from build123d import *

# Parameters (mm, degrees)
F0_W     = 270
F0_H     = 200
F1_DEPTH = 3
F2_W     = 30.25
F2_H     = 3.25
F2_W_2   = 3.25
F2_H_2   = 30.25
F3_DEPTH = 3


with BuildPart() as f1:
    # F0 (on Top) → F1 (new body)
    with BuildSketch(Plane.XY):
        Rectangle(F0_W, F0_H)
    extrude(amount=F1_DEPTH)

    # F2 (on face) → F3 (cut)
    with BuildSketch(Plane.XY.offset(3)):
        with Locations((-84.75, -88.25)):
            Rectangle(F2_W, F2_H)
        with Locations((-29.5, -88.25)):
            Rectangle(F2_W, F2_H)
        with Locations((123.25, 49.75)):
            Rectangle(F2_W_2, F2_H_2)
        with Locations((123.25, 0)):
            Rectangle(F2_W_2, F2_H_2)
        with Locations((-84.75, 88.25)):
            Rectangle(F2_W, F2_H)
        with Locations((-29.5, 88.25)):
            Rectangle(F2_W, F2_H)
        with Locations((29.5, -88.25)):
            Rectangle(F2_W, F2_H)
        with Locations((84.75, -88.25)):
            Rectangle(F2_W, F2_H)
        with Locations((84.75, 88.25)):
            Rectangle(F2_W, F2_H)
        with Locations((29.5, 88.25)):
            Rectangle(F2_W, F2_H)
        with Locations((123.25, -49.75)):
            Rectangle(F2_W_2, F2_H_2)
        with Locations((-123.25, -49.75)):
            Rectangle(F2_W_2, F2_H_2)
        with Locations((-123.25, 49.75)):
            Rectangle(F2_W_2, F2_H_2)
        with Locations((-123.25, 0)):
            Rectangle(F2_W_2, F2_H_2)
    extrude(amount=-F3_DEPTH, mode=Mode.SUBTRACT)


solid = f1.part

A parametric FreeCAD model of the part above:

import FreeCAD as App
import Part
import Sketcher
from FreeCAD import Vector

doc = App.newDocument("Part")
body = doc.addObject("PartDesign::Body", "Body")

sketch1 = body.newObject("Sketcher::SketchObject", "Sketch")
sketch1.AttachmentSupport = (doc.getObject("XY_Plane"), [""])
sketch1.MapMode = "FlatFace"
sketch1.addGeometry([
    Part.LineSegment(Vector(-135, 100, 0), Vector(-135, -100, 0)),
    Part.LineSegment(Vector(-135, -100, 0), Vector(135, -100, 0)),
    Part.LineSegment(Vector(135, -100, 0), Vector(135, 100, 0)),
    Part.LineSegment(Vector(135, 100, 0), Vector(-135, 100, 0)),
], False)
sketch1.addConstraint([
    Sketcher.Constraint("Coincident", 0, 2, 1, 1),
    Sketcher.Constraint("Coincident", 1, 2, 2, 1),
    Sketcher.Constraint("Coincident", 2, 2, 3, 1),
    Sketcher.Constraint("Coincident", 3, 2, 0, 1),
    Sketcher.Constraint("Vertical", 0),
    Sketcher.Constraint("Horizontal", 1),
    Sketcher.Constraint("Vertical", 2),
    Sketcher.Constraint("Horizontal", 3),
    Sketcher.Constraint("Symmetric", 0, 2, 2, 2, -1, 1),
    Sketcher.Constraint("DistanceX", 1, 1, 1, 2, 270.0),
    Sketcher.Constraint("DistanceY", 0, 2, 0, 1, 200.0),
])
pad1 = body.newObject("PartDesign::Pad", "Pad")
pad1.Profile = sketch1
pad1.Length = 3

sketch2 = body.newObject("Sketcher::SketchObject", "Sketch001")
sketch2.AttachmentSupport = (doc.getObject("XY_Plane"), [""])
sketch2.MapMode = "FlatFace"
sketch2.AttachmentOffset = App.Placement(Vector(0, 0, 3), App.Rotation())
sketch2.addGeometry([
    Part.LineSegment(Vector(-99.875, -86.625, 0), Vector(-99.875, -89.875, 0)),
    Part.LineSegment(Vector(-99.875, -89.875, 0), Vector(-69.625, -89.875, 0)),
    Part.LineSegment(Vector(-69.625, -89.875, 0), Vector(-69.625, -86.625, 0)),
    Part.LineSegment(Vector(-69.625, -86.625, 0), Vector(-99.875, -86.625, 0)),
    Part.LineSegment(Vector(-44.625, -86.625, 0), Vector(-44.625, -89.875, 0)),
    Part.LineSegment(Vector(-44.625, -89.875, 0), Vector(-14.375, -89.875, 0)),
    Part.LineSegment(Vector(-14.375, -89.875, 0), Vector(-14.375, -86.625, 0)),
    Part.LineSegment(Vector(-14.375, -86.625, 0), Vector(-44.625, -86.625, 0)),
    Part.LineSegment(Vector(121.625, 64.875, 0), Vector(121.625, 34.625, 0)),
    Part.LineSegment(Vector(121.625, 34.625, 0), Vector(124.875, 34.625, 0)),
    Part.LineSegment(Vector(124.875, 34.625, 0), Vector(124.875, 64.875, 0)),
    Part.LineSegment(Vector(124.875, 64.875, 0), Vector(121.625, 64.875, 0)),
    Part.LineSegment(Vector(121.625, 15.125, 0), Vector(121.625, -15.125, 0)),
    Part.LineSegment(Vector(121.625, -15.125, 0), Vector(124.875, -15.125, 0)),
    Part.LineSegment(Vector(124.875, -15.125, 0), Vector(124.875, 15.125, 0)),
    Part.LineSegment(Vector(124.875, 15.125, 0), Vector(121.625, 15.125, 0)),
    Part.LineSegment(Vector(-99.875, 89.875, 0), Vector(-99.875, 86.625, 0)),
    Part.LineSegment(Vector(-99.875, 86.625, 0), Vector(-69.625, 86.625, 0)),
    Part.LineSegment(Vector(-69.625, 86.625, 0), Vector(-69.625, 89.875, 0)),
    Part.LineSegment(Vector(-69.625, 89.875, 0), Vector(-99.875, 89.875, 0)),
    Part.LineSegment(Vector(-44.625, 89.875, 0), Vector(-44.625, 86.625, 0)),
    Part.LineSegment(Vector(-44.625, 86.625, 0), Vector(-14.375, 86.625, 0)),
    Part.LineSegment(Vector(-14.375, 86.625, 0), Vector(-14.375, 89.875, 0)),
    Part.LineSegment(Vector(-14.375, 89.875, 0), Vector(-44.625, 89.875, 0)),
    Part.LineSegment(Vector(14.375, -86.625, 0), Vector(14.375, -89.875, 0)),
    Part.LineSegment(Vector(14.375, -89.875, 0), Vector(44.625, -89.875, 0)),
    Part.LineSegment(Vector(44.625, -89.875, 0), Vector(44.625, -86.625, 0)),
    Part.LineSegment(Vector(44.625, -86.625, 0), Vector(14.375, -86.625, 0)),
    Part.LineSegment(Vector(69.625, -86.625, 0), Vector(69.625, -89.875, 0)),
    Part.LineSegment(Vector(69.625, -89.875, 0), Vector(99.875, -89.875, 0)),
    Part.LineSegment(Vector(99.875, -89.875, 0), Vector(99.875, -86.625, 0)),
    Part.LineSegment(Vector(99.875, -86.625, 0), Vector(69.625, -86.625, 0)),
    Part.LineSegment(Vector(69.625, 89.875, 0), Vector(69.625, 86.625, 0)),
    Part.LineSegment(Vector(69.625, 86.625, 0), Vector(99.875, 86.625, 0)),
    Part.LineSegment(Vector(99.875, 86.625, 0), Vector(99.875, 89.875, 0)),
    Part.LineSegment(Vector(99.875, 89.875, 0), Vector(69.625, 89.875, 0)),
    Part.LineSegment(Vector(14.375, 89.875, 0), Vector(14.375, 86.625, 0)),
    Part.LineSegment(Vector(14.375, 86.625, 0), Vector(44.625, 86.625, 0)),
    Part.LineSegment(Vector(44.625, 86.625, 0), Vector(44.625, 89.875, 0)),
    Part.LineSegment(Vector(44.625, 89.875, 0), Vector(14.375, 89.875, 0)),
    Part.LineSegment(Vector(121.625, -34.625, 0), Vector(121.625, -64.875, 0)),
    Part.LineSegment(Vector(121.625, -64.875, 0), Vector(124.875, -64.875, 0)),
    Part.LineSegment(Vector(124.875, -64.875, 0), Vector(124.875, -34.625, 0)),
    Part.LineSegment(Vector(124.875, -34.625, 0), Vector(121.625, -34.625, 0)),
    Part.LineSegment(Vector(-124.875, -34.625, 0), Vector(-124.875, -64.875, 0)),
    Part.LineSegment(Vector(-124.875, -64.875, 0), Vector(-121.625, -64.875, 0)),
    Part.LineSegment(Vector(-121.625, -64.875, 0), Vector(-121.625, -34.625, 0)),
    Part.LineSegment(Vector(-121.625, -34.625, 0), Vector(-124.875, -34.625, 0)),
    Part.LineSegment(Vector(-124.875, 64.875, 0), Vector(-124.875, 34.625, 0)),
    Part.LineSegment(Vector(-124.875, 34.625, 0), Vector(-121.625, 34.625, 0)),
    Part.LineSegment(Vector(-121.625, 34.625, 0), Vector(-121.625, 64.875, 0)),
    Part.LineSegment(Vector(-121.625, 64.875, 0), Vector(-124.875, 64.875, 0)),
    Part.LineSegment(Vector(-124.875, 15.125, 0), Vector(-124.875, -15.125, 0)),
    Part.LineSegment(Vector(-124.875, -15.125, 0), Vector(-121.625, -15.125, 0)),
    Part.LineSegment(Vector(-121.625, -15.125, 0), Vector(-121.625, 15.125, 0)),
    Part.LineSegment(Vector(-121.625, 15.125, 0), Vector(-124.875, 15.125, 0)),
], False)
sketch2.addConstraint([
    Sketcher.Constraint("Coincident", 0, 2, 1, 1),
    Sketcher.Constraint("Coincident", 1, 2, 2, 1),
    Sketcher.Constraint("Coincident", 2, 2, 3, 1),
    Sketcher.Constraint("Coincident", 3, 2, 0, 1),
    Sketcher.Constraint("Coincident", 4, 2, 5, 1),
    Sketcher.Constraint("Coincident", 5, 2, 6, 1),
    Sketcher.Constraint("Coincident", 6, 2, 7, 1),
    Sketcher.Constraint("Coincident", 7, 2, 4, 1),
    Sketcher.Constraint("Coincident", 8, 2, 9, 1),
    Sketcher.Constraint("Coincident", 9, 2, 10, 1),
    Sketcher.Constraint("Coincident", 10, 2, 11, 1),
    Sketcher.Constraint("Coincident", 11, 2, 8, 1),
    Sketcher.Constraint("Coincident", 12, 2, 13, 1),
    Sketcher.Constraint("Coincident", 13, 2, 14, 1),
    Sketcher.Constraint("Coincident", 14, 2, 15, 1),
    Sketcher.Constraint("Coincident", 15, 2, 12, 1),
    Sketcher.Constraint("Coincident", 16, 2, 17, 1),
    Sketcher.Constraint("Coincident", 17, 2, 18, 1),
    Sketcher.Constraint("Coincident", 18, 2, 19, 1),
    Sketcher.Constraint("Coincident", 19, 2, 16, 1),
    Sketcher.Constraint("Coincident", 20, 2, 21, 1),
    Sketcher.Constraint("Coincident", 21, 2, 22, 1),
    Sketcher.Constraint("Coincident", 22, 2, 23, 1),
    Sketcher.Constraint("Coincident", 23, 2, 20, 1),
    Sketcher.Constraint("Coincident", 24, 2, 25, 1),
    Sketcher.Constraint("Coincident", 25, 2, 26, 1),
    Sketcher.Constraint("Coincident", 26, 2, 27, 1),
    Sketcher.Constraint("Coincident", 27, 2, 24, 1),
    Sketcher.Constraint("Coincident", 28, 2, 29, 1),
    Sketcher.Constraint("Coincident", 29, 2, 30, 1),
    Sketcher.Constraint("Coincident", 30, 2, 31, 1),
    Sketcher.Constraint("Coincident", 31, 2, 28, 1),
    Sketcher.Constraint("Coincident", 32, 2, 33, 1),
    Sketcher.Constraint("Coincident", 33, 2, 34, 1),
    Sketcher.Constraint("Coincident", 34, 2, 35, 1),
    Sketcher.Constraint("Coincident", 35, 2, 32, 1),
    Sketcher.Constraint("Coincident", 36, 2, 37, 1),
    Sketcher.Constraint("Coincident", 37, 2, 38, 1),
    Sketcher.Constraint("Coincident", 38, 2, 39, 1),
    Sketcher.Constraint("Coincident", 39, 2, 36, 1),
    Sketcher.Constraint("Coincident", 40, 2, 41, 1),
    Sketcher.Constraint("Coincident", 41, 2, 42, 1),
    Sketcher.Constraint("Coincident", 42, 2, 43, 1),
    Sketcher.Constraint("Coincident", 43, 2, 40, 1),
    Sketcher.Constraint("Coincident", 44, 2, 45, 1),
    Sketcher.Constraint("Coincident", 45, 2, 46, 1),
    Sketcher.Constraint("Coincident", 46, 2, 47, 1),
    Sketcher.Constraint("Coincident", 47, 2, 44, 1),
    Sketcher.Constraint("Coincident", 48, 2, 49, 1),
    Sketcher.Constraint("Coincident", 49, 2, 50, 1),
    Sketcher.Constraint("Coincident", 50, 2, 51, 1),
    Sketcher.Constraint("Coincident", 51, 2, 48, 1),
    Sketcher.Constraint("Coincident", 52, 2, 53, 1),
    Sketcher.Constraint("Coincident", 53, 2, 54, 1),
    Sketcher.Constraint("Coincident", 54, 2, 55, 1),
    Sketcher.Constraint("Coincident", 55, 2, 52, 1),
    Sketcher.Constraint("Vertical", 0),
    Sketcher.Constraint("Horizontal", 1),
    Sketcher.Constraint("Vertical", 2),
    Sketcher.Constraint("Horizontal", 3),
    Sketcher.Constraint("Vertical", 4),
    Sketcher.Constraint("Horizontal", 5),
    Sketcher.Constraint("Vertical", 6),
    Sketcher.Constraint("Horizontal", 7),
    Sketcher.Constraint("Vertical", 8),
    Sketcher.Constraint("Horizontal", 9),
    Sketcher.Constraint("Vertical", 10),
    Sketcher.Constraint("Horizontal", 11),
    Sketcher.Constraint("Vertical", 12),
    Sketcher.Constraint("Horizontal", 13),
    Sketcher.Constraint("Vertical", 14),
    Sketcher.Constraint("Horizontal", 15),
    Sketcher.Constraint("Vertical", 16),
    Sketcher.Constraint("Horizontal", 17),
    Sketcher.Constraint("Vertical", 18),
    Sketcher.Constraint("Horizontal", 19),
    Sketcher.Constraint("Vertical", 20),
    Sketcher.Constraint("Horizontal", 21),
    Sketcher.Constraint("Vertical", 22),
    Sketcher.Constraint("Horizontal", 23),
    Sketcher.Constraint("Vertical", 24),
    Sketcher.Constraint("Horizontal", 25),
    Sketcher.Constraint("Vertical", 26),
    Sketcher.Constraint("Horizontal", 27),
    Sketcher.Constraint("Vertical", 28),
    Sketcher.Constraint("Horizontal", 29),
    Sketcher.Constraint("Vertical", 30),
    Sketcher.Constraint("Horizontal", 31),
    Sketcher.Constraint("Vertical", 32),
    Sketcher.Constraint("Horizontal", 33),
    Sketcher.Constraint("Vertical", 34),
    Sketcher.Constraint("Horizontal", 35),
    Sketcher.Constraint("Vertical", 36),
    Sketcher.Constraint("Horizontal", 37),
    Sketcher.Constraint("Vertical", 38),
    Sketcher.Constraint("Horizontal", 39),
    Sketcher.Constraint("Vertical", 40),
    Sketcher.Constraint("Horizontal", 41),
    Sketcher.Constraint("Vertical", 42),
    Sketcher.Constraint("Horizontal", 43),
    Sketcher.Constraint("Vertical", 44),
    Sketcher.Constraint("Horizontal", 45),
    Sketcher.Constraint("Vertical", 46),
    Sketcher.Constraint("Horizontal", 47),
    Sketcher.Constraint("Vertical", 48),
    Sketcher.Constraint("Horizontal", 49),
    Sketcher.Constraint("Vertical", 50),
    Sketcher.Constraint("Horizontal", 51),
    Sketcher.Constraint("Vertical", 52),
    Sketcher.Constraint("Horizontal", 53),
    Sketcher.Constraint("Vertical", 54),
    Sketcher.Constraint("Horizontal", 55),
    Sketcher.Constraint("Symmetric", 22, 2, 24, 2, -1, 1),
    Sketcher.Constraint("Symmetric", 20, 2, 26, 2, -1, 1),
    Sketcher.Constraint("Symmetric", 18, 2, 28, 2, -1, 1),
    Sketcher.Constraint("Symmetric", 16, 2, 30, 2, -1, 1),
    Sketcher.Constraint("Symmetric", 2, 2, 32, 2, -1, 1),
    Sketcher.Constraint("Symmetric", 0, 2, 34, 2, -1, 1),
    Sketcher.Constraint("Symmetric", 6, 2, 36, 2, -1, 1),
    Sketcher.Constraint("Symmetric", 4, 2, 38, 2, -1, 1),
    Sketcher.Constraint("Symmetric", 10, 2, 44, 2, -1, 1),
    Sketcher.Constraint("Symmetric", 8, 2, 46, 2, -1, 1),
    Sketcher.Constraint("Symmetric", 42, 2, 48, 2, -1, 1),
    Sketcher.Constraint("Symmetric", 40, 2, 50, 2, -1, 1),
    Sketcher.Constraint("Symmetric", 14, 2, 52, 2, -1, 1),
    Sketcher.Constraint("Symmetric", 12, 2, 54, 2, -1, 1),
    Sketcher.Constraint("Symmetric", 5, 2, 24, 2, -2),
    Sketcher.Constraint("Symmetric", 7, 2, 26, 2, -2),
    Sketcher.Constraint("Symmetric", 1, 2, 28, 2, -2),
    Sketcher.Constraint("Symmetric", 3, 2, 30, 2, -2),
    Sketcher.Constraint("Symmetric", 41, 2, 44, 2, -2),
    Sketcher.Constraint("Symmetric", 43, 2, 46, 2, -2),
    Sketcher.Constraint("Horizontal", 1, 2, 4, 2),
    Sketcher.Constraint("Horizontal", 3, 2, 6, 2),
    Sketcher.Constraint("Horizontal", 13, 2, 52, 2),
    Sketcher.Constraint("Vertical", 11, 2, 12, 2),
    Sketcher.Constraint("Vertical", 10, 2, 13, 2),
    Sketcher.Constraint("Equal", 3, 5),
    Sketcher.Constraint("Equal", 55, 0),
    Sketcher.Constraint("Equal", 39, 8),
    Sketcher.Constraint("Equal", 10, 12),
    Sketcher.Constraint("DistanceX", 1, 2, 4, 2, 25.0),
    Sketcher.Constraint("DistanceX", 6, 2, 8, 2, 136.0),
    Sketcher.Constraint("DistanceY", 12, 2, 11, 2, 80.0),
    Sketcher.Constraint("DistanceX", 4, 2, 24, 2, 59.0),
    Sketcher.Constraint("DistanceX", 29, 2, 13, 2, 25.0),
    Sketcher.Constraint("DistanceY", 8, 2, 32, 2, 52.0),
    Sketcher.Constraint("DistanceX", 1, 1, 1, 2, 30.25),
])
pocket1 = body.newObject("PartDesign::Pocket", "Pocket")
pocket1.Profile = sketch2
pocket1.Length = 3

doc.recompute()
